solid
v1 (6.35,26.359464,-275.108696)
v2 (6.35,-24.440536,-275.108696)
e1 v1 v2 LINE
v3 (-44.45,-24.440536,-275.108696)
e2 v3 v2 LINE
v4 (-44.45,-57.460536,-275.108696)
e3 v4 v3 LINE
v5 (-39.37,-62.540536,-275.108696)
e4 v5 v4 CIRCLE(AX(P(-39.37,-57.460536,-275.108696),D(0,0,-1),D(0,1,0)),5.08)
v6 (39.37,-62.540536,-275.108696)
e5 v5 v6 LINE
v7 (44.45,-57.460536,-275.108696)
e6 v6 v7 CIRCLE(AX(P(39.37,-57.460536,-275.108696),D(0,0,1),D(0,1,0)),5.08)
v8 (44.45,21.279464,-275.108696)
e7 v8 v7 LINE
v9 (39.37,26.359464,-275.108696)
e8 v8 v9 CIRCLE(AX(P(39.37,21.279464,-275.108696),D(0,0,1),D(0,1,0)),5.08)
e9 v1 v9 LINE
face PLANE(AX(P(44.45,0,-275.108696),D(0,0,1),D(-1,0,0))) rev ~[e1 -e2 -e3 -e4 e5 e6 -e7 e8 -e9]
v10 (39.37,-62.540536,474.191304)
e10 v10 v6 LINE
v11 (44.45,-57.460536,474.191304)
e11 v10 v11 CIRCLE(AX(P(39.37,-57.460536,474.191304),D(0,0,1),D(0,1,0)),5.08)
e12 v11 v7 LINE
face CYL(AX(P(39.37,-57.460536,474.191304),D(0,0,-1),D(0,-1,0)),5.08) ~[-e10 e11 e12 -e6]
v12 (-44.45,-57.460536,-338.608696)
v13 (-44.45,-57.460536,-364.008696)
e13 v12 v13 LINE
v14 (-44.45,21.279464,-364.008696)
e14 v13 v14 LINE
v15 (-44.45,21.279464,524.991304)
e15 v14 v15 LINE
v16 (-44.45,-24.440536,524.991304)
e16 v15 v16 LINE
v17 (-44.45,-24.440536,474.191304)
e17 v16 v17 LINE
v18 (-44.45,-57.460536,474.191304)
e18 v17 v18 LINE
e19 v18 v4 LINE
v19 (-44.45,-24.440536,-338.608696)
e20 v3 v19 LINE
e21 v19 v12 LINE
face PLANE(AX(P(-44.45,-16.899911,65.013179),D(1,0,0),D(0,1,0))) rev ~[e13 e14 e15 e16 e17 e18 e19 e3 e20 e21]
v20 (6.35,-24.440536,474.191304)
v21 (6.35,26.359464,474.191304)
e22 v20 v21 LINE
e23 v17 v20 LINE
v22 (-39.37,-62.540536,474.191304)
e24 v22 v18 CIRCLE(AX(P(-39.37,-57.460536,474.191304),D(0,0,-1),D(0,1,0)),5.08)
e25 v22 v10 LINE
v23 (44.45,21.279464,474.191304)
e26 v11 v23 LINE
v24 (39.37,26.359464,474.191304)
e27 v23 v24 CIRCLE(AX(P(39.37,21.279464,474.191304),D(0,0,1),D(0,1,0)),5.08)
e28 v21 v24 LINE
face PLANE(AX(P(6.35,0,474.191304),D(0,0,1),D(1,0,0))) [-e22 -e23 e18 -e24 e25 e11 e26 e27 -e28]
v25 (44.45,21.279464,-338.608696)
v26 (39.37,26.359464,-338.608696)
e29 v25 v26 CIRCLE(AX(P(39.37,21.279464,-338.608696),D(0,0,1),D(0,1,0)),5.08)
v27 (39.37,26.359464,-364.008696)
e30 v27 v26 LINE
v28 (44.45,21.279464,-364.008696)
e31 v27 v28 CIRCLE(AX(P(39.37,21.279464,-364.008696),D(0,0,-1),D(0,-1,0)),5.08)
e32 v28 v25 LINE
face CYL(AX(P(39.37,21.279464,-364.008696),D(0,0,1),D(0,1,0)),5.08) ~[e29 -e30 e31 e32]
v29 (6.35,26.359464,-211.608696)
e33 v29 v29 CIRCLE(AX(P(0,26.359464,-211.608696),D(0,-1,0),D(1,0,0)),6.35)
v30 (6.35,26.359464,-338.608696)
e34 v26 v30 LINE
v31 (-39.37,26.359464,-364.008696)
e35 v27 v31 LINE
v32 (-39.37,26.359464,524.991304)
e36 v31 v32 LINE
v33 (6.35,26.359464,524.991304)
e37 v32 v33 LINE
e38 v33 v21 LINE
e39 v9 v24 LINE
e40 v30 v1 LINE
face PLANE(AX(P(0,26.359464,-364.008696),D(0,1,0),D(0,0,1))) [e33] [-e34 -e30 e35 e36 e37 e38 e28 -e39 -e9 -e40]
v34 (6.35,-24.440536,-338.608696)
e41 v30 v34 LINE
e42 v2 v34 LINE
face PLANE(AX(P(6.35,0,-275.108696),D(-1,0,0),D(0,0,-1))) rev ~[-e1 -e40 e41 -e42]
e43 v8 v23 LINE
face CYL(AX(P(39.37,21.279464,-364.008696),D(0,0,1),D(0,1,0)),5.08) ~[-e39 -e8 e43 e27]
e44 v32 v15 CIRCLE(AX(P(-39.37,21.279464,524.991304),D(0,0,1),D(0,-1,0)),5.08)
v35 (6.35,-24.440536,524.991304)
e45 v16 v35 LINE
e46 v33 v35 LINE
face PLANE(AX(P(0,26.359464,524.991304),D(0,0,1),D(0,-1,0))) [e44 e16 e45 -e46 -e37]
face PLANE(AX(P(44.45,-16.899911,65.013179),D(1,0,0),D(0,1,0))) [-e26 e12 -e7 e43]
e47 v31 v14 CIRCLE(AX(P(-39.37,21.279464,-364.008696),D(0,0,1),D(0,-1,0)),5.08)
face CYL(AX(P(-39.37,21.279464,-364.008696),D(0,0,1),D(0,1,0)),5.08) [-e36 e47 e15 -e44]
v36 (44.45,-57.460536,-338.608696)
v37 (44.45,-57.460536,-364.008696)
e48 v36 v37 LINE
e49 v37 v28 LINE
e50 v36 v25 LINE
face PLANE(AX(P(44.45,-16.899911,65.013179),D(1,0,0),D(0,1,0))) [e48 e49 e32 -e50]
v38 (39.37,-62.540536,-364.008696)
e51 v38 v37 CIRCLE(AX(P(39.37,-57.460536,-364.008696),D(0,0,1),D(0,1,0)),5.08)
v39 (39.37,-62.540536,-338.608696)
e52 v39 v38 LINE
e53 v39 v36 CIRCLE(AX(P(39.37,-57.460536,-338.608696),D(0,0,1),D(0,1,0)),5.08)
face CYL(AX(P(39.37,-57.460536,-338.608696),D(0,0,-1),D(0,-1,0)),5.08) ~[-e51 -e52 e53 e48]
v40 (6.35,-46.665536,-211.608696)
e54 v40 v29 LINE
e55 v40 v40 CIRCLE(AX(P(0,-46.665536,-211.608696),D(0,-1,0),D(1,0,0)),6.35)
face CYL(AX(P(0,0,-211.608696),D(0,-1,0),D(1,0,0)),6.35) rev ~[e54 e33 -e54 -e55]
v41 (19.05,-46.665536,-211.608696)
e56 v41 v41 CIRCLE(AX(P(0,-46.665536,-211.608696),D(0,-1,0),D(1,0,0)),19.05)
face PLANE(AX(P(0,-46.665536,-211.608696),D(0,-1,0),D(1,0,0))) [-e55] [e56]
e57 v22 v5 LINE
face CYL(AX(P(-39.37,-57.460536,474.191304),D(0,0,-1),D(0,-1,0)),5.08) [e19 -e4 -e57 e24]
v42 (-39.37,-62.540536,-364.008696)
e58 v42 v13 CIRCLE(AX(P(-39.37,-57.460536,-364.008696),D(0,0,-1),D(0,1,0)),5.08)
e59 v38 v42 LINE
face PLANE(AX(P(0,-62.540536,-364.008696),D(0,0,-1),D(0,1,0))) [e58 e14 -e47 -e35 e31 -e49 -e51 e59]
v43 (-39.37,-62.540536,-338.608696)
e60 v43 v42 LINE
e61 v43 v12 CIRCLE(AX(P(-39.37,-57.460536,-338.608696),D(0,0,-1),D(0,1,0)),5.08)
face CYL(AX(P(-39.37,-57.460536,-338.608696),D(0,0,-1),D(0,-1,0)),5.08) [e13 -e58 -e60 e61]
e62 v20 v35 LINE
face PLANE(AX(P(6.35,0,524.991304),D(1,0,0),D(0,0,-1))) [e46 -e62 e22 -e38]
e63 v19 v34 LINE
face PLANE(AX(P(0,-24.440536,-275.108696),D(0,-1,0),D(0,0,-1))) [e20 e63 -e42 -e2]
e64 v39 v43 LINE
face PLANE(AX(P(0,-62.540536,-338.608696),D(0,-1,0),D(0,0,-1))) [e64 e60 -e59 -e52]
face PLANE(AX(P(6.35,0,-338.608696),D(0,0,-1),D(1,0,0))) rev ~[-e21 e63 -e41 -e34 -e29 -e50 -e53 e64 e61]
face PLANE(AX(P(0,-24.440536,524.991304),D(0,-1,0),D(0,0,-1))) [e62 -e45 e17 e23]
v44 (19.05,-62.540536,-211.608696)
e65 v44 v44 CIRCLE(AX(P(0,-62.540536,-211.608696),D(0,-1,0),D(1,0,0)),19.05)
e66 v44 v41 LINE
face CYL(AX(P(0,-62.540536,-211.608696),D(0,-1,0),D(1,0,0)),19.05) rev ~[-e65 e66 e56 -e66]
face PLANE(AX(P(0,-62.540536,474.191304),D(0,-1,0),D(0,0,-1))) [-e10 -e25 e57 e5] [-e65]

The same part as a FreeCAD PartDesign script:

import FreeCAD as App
import Part
import Sketcher
Q = App.Units.Quantity


def edges_at(feature, points):
    """Names of the edges that pass closest to the given points."""
    edges = feature.Shape.Edges
    near = lambda p: min(range(len(edges)), key=lambda i: edges[i].distToShape(Part.Vertex(*p))[0])
    return sorted({f"Edge{near(p) + 1}" for p in points})

doc = App.newDocument("Part")
body = doc.addObject("PartDesign::Body", "Body")

# Sketch on YZ plane
sketch1 = body.newObject("Sketcher::SketchObject", "Sketch")
sketch1.AttachmentSupport = (doc.getObject("YZ_Plane"), [""])
sketch1.MapMode = "FlatFace"
sketch1.addGeometry([
    Part.LineSegment(App.Vector(26, -364, 0), App.Vector(26, 525, 0)),  # 0
    Part.LineSegment(App.Vector(26, 525, 0), App.Vector(-24, 525, 0)),  # 1
    Part.LineSegment(App.Vector(-24, 525, 0), App.Vector(-24, 474, 0)),  # 2
    Part.LineSegment(App.Vector(-24, 474, 0), App.Vector(-63, 474, 0)),  # 3
    Part.LineSegment(App.Vector(-63, 474, 0), App.Vector(-63, -275, 0)),  # 4
    Part.LineSegment(App.Vector(-63, -275, 0), App.Vector(-24, -275, 0)),  # 5
    Part.LineSegment(App.Vector(-24, -275, 0), App.Vector(-24, -339, 0)),  # 6
    Part.LineSegment(App.Vector(-24, -339, 0), App.Vector(-63, -339, 0)),  # 7
    Part.LineSegment(App.Vector(-63, -339, 0), App.Vector(-63, -364, 0)),  # 8
    Part.LineSegment(App.Vector(-63, -364, 0), App.Vector(26, -364, 0)),  # 9
], False)
sketch1.addConstraint([
    Sketcher.Constraint("Coincident", 0, 2, 1, 1),
    Sketcher.Constraint("Coincident", 1, 2, 2, 1),
    Sketcher.Constraint("Coincident", 2, 2, 3, 1),
    Sketcher.Constraint("Coincident", 3, 2, 4, 1),
    Sketcher.Constraint("Coincident", 4, 2, 5, 1),
    Sketcher.Constraint("Coincident", 5, 2, 6, 1),
    Sketcher.Constraint("Coincident", 6, 2, 7, 1),
    Sketcher.Constraint("Coincident", 7, 2, 8, 1),
    Sketcher.Constraint("Coincident", 8, 2, 9, 1),
    Sketcher.Constraint("Coincident", 9, 2, 0, 1),
    Sketcher.Constraint("Vertical", 0),
    Sketcher.Constraint("Horizontal", 1),
    Sketcher.Constraint("Vertical", 2),
    Sketcher.Constraint("Horizontal", 3),
    Sketcher.Constraint("Vertical", 4),
    Sketcher.Constraint("Horizontal", 5),
    Sketcher.Constraint("Vertical", 6),
    Sketcher.Constraint("Horizontal", 7),
    Sketcher.Constraint("Vertical", 8),
    Sketcher.Constraint("Horizontal", 9),
    Sketcher.Constraint("Vertical", 2, 2, 5, 2),
    Sketcher.Constraint("Vertical", 4, 2, 7, 2),
    Sketcher.Constraint("Equal", 1, 2),
    Sketcher.Constraint("DistanceX", 1, 2, 1, 1, Q("2 in")),
    Sketcher.Constraint("DistanceY", 0, 1, 0, 2, Q("35 in")),
    Sketcher.Constraint("DistanceY", 8, 2, 8, 1, Q("1 in")),
    Sketcher.Constraint("DistanceX", 3, 2, 3, 1, Q("1.5 in")),
    Sketcher.Constraint("DistanceY", 4, 2, 4, 1, Q("29.5 in")),
    Sketcher.Constraint("DistanceX", -1, 1, 0, 2, Q("26.359464 mm")),
    Sketcher.Constraint("DistanceY", -1, 1, 0, 2, Q("524.991304 mm")),
])
pad1 = body.newObject("PartDesign::Pad", "Pad")
pad1.Profile = sketch1
pad1.Length = Q("3.5 in")
pad1.Midplane = True
doc.recompute()

fillet = body.newObject("PartDesign::Fillet", "Fillet")
fillet.Base = (pad1, edges_at(pad1, [
    (44.45, -62.541, 99.541),
    (44.45, -62.541, -351.309),
    (-44.45, -62.541, -351.309),
    (-44.45, -62.541, 99.541),
    (44.45, 26.359, 80.491),
    (-44.45, 26.359, 80.491),
]))
fillet.Radius = Q("0.2 in")

# Sketch on XZ plane
sketch2 = body.newObject("Sketcher::SketchObject", "Sketch001")
sketch2.AttachmentSupport = (doc.getObject("XZ_Plane"), [""])
sketch2.MapMode = "FlatFace"
sketch2.addGeometry([
    Part.LineSegment(App.Vector(44, 474, 0), App.Vector(44, 525, 0)),  # 0
    Part.LineSegment(App.Vector(44, 525, 0), App.Vector(6, 525, 0)),  # 1
    Part.LineSegment(App.Vector(6, 525, 0), App.Vector(6, 474, 0)),  # 2
    Part.LineSegment(App.Vector(6, 474, 0), App.Vector(44, 474, 0)),  # 3
    Part.LineSegment(App.Vector(44, -275, 0), App.Vector(6, -275, 0)),  # 4
    Part.LineSegment(App.Vector(6, -275, 0), App.Vector(6, -339, 0)),  # 5
    Part.LineSegment(App.Vector(6, -339, 0), App.Vector(44, -339, 0)),  # 6
    Part.LineSegment(App.Vector(44, -339, 0), App.Vector(44, -275, 0)),  # 7
], False)
sketch2.addConstraint([
    Sketcher.Constraint("Coincident", 0, 2, 1, 1),
    Sketcher.Constraint("Coincident", 1, 2, 2, 1),
    Sketcher.Constraint("Coincident", 2, 2, 3, 1),
    Sketcher.Constraint("Coincident", 3, 2, 0, 1),
    Sketcher.Constraint("Coincident", 4, 2, 5, 1),
    Sketcher.Constraint("Coincident", 5, 2, 6, 1),
    Sketcher.Constraint("Coincident", 6, 2, 7, 1),
    Sketcher.Constraint("Coincident", 7, 2, 4, 1),
    Sketcher.Constraint("Vertical", 0),
    Sketcher.Constraint("Horizontal", 1),
    Sketcher.Constraint("Vertical", 2),
    Sketcher.Constraint("Horizontal", 3),
    Sketcher.Constraint("Horizontal", 4),
    Sketcher.Constraint("Vertical", 5),
    Sketcher.Constraint("Horizontal", 6),
    Sketcher.Constraint("Vertical", 7),
    Sketcher.Constraint("Vertical", 2, 2, 4, 2),
    Sketcher.Constraint("Vertical", 3, 2, 6, 2),
    Sketcher.Constraint("DistanceY", 0, 1, 0, 2, Q("2 in")),
    Sketcher.Constraint("DistanceX", 1, 2, 1, 1, Q("1.5 in")),
    Sketcher.Constraint("DistanceY", 5, 2, 5, 1, Q("2.5 in")),
    Sketcher.Constraint("DistanceY", 5, 2, 2, 2, Q("32 in")),
    Sketcher.Constraint("DistanceX", -1, 1, 0, 2, Q("1.75 in")),
    Sketcher.Constraint("DistanceY", -1, 1, 0, 2, Q("524.991304 mm")),
])
pocket1 = body.newObject("PartDesign::Pocket", "Pocket")
pocket1.Profile = sketch2
pocket1.Length = Q("4 in")
pocket1.Midplane = True

# Sketch on XZ plane
sketch3 = body.newObject("Sketcher::SketchObject", "Sketch002")
sketch3.AttachmentSupport = (doc.getObject("XZ_Plane"), [""])
sketch3.MapMode = "FlatFace"
sketch3.addGeometry(Part.Circle(App.Vector(0, -212, 0), App.Vector(0, 0, 1), 6), False)
sketch3.addConstraint([
    Sketcher.Constraint("PointOnObject", 0, 3, -2),
    Sketcher.Constraint("Diameter", 0, Q("0.5 in")),
    Sketcher.Constraint("DistanceY", 0, 3, -1, 1, Q("211.608696 mm")),
])
pocket2 = body.newObject("PartDesign::Pocket", "Pocket001")
pocket2.Profile = sketch3
pocket2.Type = "ThroughAll"
pocket2.Midplane = True

# Sketch on XZ plane
sketch4 = body.newObject("Sketcher::SketchObject", "Sketch003")
sketch4.AttachmentSupport = (doc.getObject("XZ_Plane"), [""])
sketch4.MapMode = "FlatFace"
sketch4.AttachmentOffset = App.Placement(App.Vector(0, 0, 62.540536), App.Rotation())
sketch4.addGeometry([
    Part.Circle(App.Vector(0, -212, 0), App.Vector(0, 0, 1), 19),
    Part.Circle(App.Vector(0, -212, 0), App.Vector(0, 0, 1), 6),
], False)
sketch4.addConstraint([
    Sketcher.Constraint("Coincident", 1, 3, 0, 3),
    Sketcher.Constraint("PointOnObject", 0, 3, -2),
    Sketcher.Constraint("Diameter", 0, Q("1.5 in")),
    Sketcher.Constraint("Diameter", 1, Q("0.5 in")),
    Sketcher.Constraint("DistanceY", 0, 3, -1, 1, Q("211.608696 mm")),
])
pocket3 = body.newObject("PartDesign::Pocket", "Pocket002")
pocket3.Profile = sketch4
pocket3.Length = Q("0.625 in")

doc.recompute()
